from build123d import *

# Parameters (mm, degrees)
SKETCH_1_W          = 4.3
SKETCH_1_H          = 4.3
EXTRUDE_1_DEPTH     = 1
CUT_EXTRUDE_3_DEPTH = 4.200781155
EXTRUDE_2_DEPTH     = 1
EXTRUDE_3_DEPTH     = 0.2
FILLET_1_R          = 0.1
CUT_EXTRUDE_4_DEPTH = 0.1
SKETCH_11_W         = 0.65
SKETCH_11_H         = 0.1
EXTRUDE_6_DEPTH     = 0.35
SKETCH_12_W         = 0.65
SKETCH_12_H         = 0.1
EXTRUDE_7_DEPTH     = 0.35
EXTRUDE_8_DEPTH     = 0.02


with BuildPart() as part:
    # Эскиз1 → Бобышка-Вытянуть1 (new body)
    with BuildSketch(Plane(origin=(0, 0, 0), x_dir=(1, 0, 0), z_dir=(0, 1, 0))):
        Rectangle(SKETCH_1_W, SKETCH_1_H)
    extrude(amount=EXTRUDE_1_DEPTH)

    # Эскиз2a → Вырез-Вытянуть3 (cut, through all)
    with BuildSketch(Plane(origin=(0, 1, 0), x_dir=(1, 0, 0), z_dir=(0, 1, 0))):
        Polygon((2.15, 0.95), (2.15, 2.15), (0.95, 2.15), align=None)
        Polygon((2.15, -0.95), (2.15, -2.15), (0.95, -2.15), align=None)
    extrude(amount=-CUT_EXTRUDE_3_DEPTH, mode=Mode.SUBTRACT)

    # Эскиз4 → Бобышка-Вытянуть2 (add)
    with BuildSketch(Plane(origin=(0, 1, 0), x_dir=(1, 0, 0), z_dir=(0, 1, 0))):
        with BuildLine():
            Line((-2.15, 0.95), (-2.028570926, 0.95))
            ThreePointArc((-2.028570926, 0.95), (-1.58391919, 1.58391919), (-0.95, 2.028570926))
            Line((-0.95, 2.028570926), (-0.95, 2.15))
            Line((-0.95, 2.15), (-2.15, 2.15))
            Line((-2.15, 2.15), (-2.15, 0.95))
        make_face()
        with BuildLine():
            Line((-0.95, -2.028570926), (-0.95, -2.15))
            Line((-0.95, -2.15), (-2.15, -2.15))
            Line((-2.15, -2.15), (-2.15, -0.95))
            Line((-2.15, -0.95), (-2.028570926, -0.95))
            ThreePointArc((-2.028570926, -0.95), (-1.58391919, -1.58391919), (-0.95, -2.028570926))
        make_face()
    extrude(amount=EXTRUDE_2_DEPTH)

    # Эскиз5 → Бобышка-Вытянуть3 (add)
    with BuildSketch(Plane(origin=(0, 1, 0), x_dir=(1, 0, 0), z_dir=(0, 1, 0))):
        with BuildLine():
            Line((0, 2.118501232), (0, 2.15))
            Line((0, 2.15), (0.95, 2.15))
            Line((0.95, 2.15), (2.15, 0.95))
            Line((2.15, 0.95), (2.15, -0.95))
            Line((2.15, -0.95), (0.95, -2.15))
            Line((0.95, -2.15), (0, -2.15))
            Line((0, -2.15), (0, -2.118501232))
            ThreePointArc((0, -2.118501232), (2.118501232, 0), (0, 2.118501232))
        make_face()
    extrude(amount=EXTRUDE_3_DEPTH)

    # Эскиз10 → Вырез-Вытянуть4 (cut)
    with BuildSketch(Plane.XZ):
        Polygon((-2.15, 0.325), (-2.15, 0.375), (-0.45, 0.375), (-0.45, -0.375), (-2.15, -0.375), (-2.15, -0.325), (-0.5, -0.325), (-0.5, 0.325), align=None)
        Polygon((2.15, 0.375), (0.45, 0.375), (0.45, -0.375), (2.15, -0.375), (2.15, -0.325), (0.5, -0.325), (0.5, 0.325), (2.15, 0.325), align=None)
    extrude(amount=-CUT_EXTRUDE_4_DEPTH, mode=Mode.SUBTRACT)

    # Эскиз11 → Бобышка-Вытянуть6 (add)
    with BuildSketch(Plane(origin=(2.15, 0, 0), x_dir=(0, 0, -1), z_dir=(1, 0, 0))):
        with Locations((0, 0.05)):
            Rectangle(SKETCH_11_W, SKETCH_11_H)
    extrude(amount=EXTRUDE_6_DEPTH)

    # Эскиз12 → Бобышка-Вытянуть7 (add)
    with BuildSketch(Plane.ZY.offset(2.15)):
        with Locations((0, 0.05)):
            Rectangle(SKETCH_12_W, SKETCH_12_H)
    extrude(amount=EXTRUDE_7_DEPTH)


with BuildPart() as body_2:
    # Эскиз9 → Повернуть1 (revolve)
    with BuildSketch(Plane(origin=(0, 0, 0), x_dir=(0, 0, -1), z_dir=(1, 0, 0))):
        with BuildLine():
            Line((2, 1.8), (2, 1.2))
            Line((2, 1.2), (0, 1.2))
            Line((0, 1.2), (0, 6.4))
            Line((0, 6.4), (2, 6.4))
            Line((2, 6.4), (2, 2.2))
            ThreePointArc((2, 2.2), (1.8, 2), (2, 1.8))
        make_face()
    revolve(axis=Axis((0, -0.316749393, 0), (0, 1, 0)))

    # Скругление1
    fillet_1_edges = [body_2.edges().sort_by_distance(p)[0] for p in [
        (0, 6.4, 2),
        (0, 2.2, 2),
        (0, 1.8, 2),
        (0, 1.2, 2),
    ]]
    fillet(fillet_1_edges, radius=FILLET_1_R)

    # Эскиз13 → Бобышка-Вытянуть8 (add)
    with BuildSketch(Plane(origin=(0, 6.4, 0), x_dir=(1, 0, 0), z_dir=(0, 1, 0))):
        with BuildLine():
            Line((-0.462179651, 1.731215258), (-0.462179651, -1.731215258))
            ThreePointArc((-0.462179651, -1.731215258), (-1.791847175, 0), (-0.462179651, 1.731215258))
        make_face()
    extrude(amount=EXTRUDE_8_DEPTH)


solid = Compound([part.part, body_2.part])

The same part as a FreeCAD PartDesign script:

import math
import FreeCAD as App
import Part
import Sketcher
Q = App.Units.Quantity


def edges_at(feature, points):
    """Names of the edges that pass closest to the given points."""
    edges = feature.Shape.Edges
    near = lambda p: min(range(len(edges)), key=lambda i: edges[i].distToShape(Part.Vertex(*p))[0])
    return sorted({f"Edge{near(p) + 1}" for p in points})


def add_polygon(sketch, points):
    """Adds a closed chain of lines whose ends are joined by coincident constraints."""
    first, n = sketch.GeometryCount, len(points)
    for a, b in zip(points, points[1:] + points[:1]):
        sketch.addGeometry(Part.LineSegment(App.Vector(*a, 0), App.Vector(*b, 0)), False)
    for i in range(n):
        sketch.addConstraint(Sketcher.Constraint("Coincident", first + i, 2, first + (i + 1) % n, 1))

doc = App.newDocument("Part")
params = doc.addObject("Spreadsheet::Sheet", "Params")
for row, (alias, value) in enumerate([
    ("sketch1_width", "4.3 mm"),
    ("pad1_length", "1 mm"),
    ("sketch2_width", "1.2 mm"),
    ("sketch3_radius", "2.24 mm"),
    ("sketch3_width", "1.2 mm"),
    ("pad2_length", "1 mm"),
    ("sketch4_height", "1.9 mm"),
    ("sketch4_width", "0.95 mm"),
    ("pad3_length", "0.2 mm"),
    ("sketch5_width", "1.7 mm"),
    ("sketch5_width2", "1.65 mm"),
    ("sketch5_height", "0.05 mm"),
    ("sketch5_height2", "0.65 mm"),
    ("pocket2_length", "0.1 mm"),
    ("sketch6_width", "0.1 mm"),
    ("sketch6_height", "0.65 mm"),
    ("pad4_length", "0.35 mm"),
    ("sketch7_width", "0.1 mm"),
    ("sketch7_height", "0.65 mm"),
    ("pad5_length", "0.35 mm"),
    ("sketch8_radius", "0.2 mm"),
    ("sketch8_height", "2 mm"),
    ("sketch8_width", "0.6 mm"),
    ("sketch8_width2", "4.2 mm"),
    ("revolution_angle", "360 deg"),
    ("fillet_radius", "0.1 mm"),
    ("pad6_length", "0.02 mm"),
], start=1):
    params.set(f"A{row}", alias)
    params.set(f"B{row}", "=" + value)
    params.setAlias(f"B{row}", alias)

body = doc.addObject("PartDesign::Body", "Body")

sketch1 = body.newObject("Sketcher::SketchObject", "Sketch")
sketch1.AttachmentSupport = (doc.getObject("XZ_Plane"), [""])
sketch1.MapMode = "FlatFace"
add_polygon(sketch1, [(-2.15, -2.15), (-2.15, 2.15), (2.15, 2.15), (2.15, -2.15)])
sketch1.addConstraint([
    Sketcher.Constraint("Vertical", 0),
    Sketcher.Constraint("Horizontal", 1),
    Sketcher.Constraint("Vertical", 2),
    Sketcher.Constraint("Horizontal", 3),
    Sketcher.Constraint("Symmetric", 0, 2, 2, 2, -1, 1),
    Sketcher.Constraint("Equal", 3, 0),
    Sketcher.Constraint("DistanceX", 1, 1, 1, 2, Q("4.3 mm")),
])
sketch1.setExpression("Constraints[10]", "Params.sketch1_width")
pad1 = body.newObject("PartDesign::Pad", "Pad")
pad1.Profile = sketch1
pad1.setExpression("Length", "Params.pad1_length")
pad1.Reversed = True

sketch2 = body.newObject("Sketcher::SketchObject", "Sketch001")
sketch2.AttachmentSupport = (doc.getObject("XZ_Plane"), [""])
sketch2.MapMode = "FlatFace"
sketch2.AttachmentOffset = App.Placement(App.Vector(0, 0, -1), App.Rotation())
add_polygon(sketch2, [(2.15, -0.95), (2.15, -2.15), (0.95, -2.15)])
add_polygon(sketch2, [(2.15, 2.15), (2.15, 0.95), (0.95, 2.15)])
sketch2.addConstraint([
    Sketcher.Constraint("Vertical", 0),
    Sketcher.Constraint("Horizontal", 1),
    Sketcher.Constraint("Vertical", 3),
    Sketcher.Constraint("Horizontal", 5),
    Sketcher.Constraint("Symmetric", 2, 2, 3, 2, -1),
    Sketcher.Constraint("Symmetric", 1, 2, 4, 2, -1),
    Sketcher.Constraint("Perpendicular", 2, 4),
    Sketcher.Constraint("DistanceX", 1, 2, 1, 1, Q("1.2 mm")),
    Sketcher.Constraint("DistanceY", 2, 2, 3, 2, Q("1.9 mm")),
    Sketcher.Constraint("DistanceX", -1, 1, 0, 2, Q("2.15 mm")),
])
sketch2.setExpression("Constraints[13]", "Params.sketch2_width")
pocket1 = body.newObject("PartDesign::Pocket", "Pocket")
pocket1.Profile = sketch2
pocket1.Type = "ThroughAll"
pocket1.Reversed = True

sketch3 = body.newObject("Sketcher::SketchObject", "Sketch002")
sketch3.AttachmentSupport = (doc.getObject("XZ_Plane"), [""])
sketch3.MapMode = "FlatFace"
sketch3.AttachmentOffset = App.Placement(App.Vector(0, 0, -1), App.Rotation())
sketch3.addGeometry([
    Part.LineSegment(App.Vector(-2.15, -0.95, 0), App.Vector(-2.028571, -0.95, 0)),
    Part.ArcOfCircle(Part.Circle(App.Vector(0, 0, 0), App.Vector(0, 0, 1), 2.24), math.radians(-154.905838), math.radians(-115.094162)),
    Part.LineSegment(App.Vector(-0.95, -2.028571, 0), App.Vector(-0.95, -2.15, 0)),
    Part.LineSegment(App.Vector(-0.95, -2.15, 0), App.Vector(-2.15, -2.15, 0)),
    Part.LineSegment(App.Vector(-2.15, -2.15, 0), App.Vector(-2.15, -0.95, 0)),
    Part.LineSegment(App.Vector(-0.95, 2.15, 0), App.Vector(-0.95, 2.028571, 0)),
    Part.ArcOfCircle(Part.Circle(App.Vector(0, 0, 0), App.Vector(0, 0, 1), 2.24), math.radians(115.094162), math.radians(154.905838)),
    Part.LineSegment(App.Vector(-2.028571, 0.95, 0), App.Vector(-2.15, 0.95, 0)),
    Part.LineSegment(App.Vector(-2.15, 0.95, 0), App.Vector(-2.15, 2.15, 0)),
    Part.LineSegment(App.Vector(-2.15, 2.15, 0), App.Vector(-0.95, 2.15, 0)),
], False)
sketch3.addConstraint([
    Sketcher.Constraint("Coincident", 0, 2, 1, 1),
    Sketcher.Constraint("Coincident", 1, 2, 2, 1),
    Sketcher.Constraint("Coincident", 2, 2, 3, 1),
    Sketcher.Constraint("Coincident", 3, 2, 4, 1),
    Sketcher.Constraint("Coincident", 4, 2, 0, 1),
    Sketcher.Constraint("Coincident", 5, 2, 6, 1),
    Sketcher.Constraint("Coincident", 6, 2, 7, 1),
    Sketcher.Constraint("Coincident", 7, 2, 8, 1),
    Sketcher.Constraint("Coincident", 8, 2, 9, 1),
    Sketcher.Constraint("Coincident", 9, 2, 5, 1),
    Sketcher.Constraint("Horizontal", 0),
    Sketcher.Constraint("Vertical", 2),
    Sketcher.Constraint("Horizontal", 3),
    Sketcher.Constraint("Vertical", 4),
    Sketcher.Constraint("Vertical", 5),
    Sketcher.Constraint("Horizontal", 7),
    Sketcher.Constraint("Vertical", 8),
    Sketcher.Constraint("Horizontal", 9),
    Sketcher.Constraint("Coincident", 1, 3, -1, 1),
    Sketcher.Constraint("Coincident", 6, 3, -1, 1),
    Sketcher.Constraint("Equal", 1, 6),
    Sketcher.Constraint("Symmetric", 4, 2, 7, 2, -1),
    Sketcher.Constraint("Symmetric", 2, 2, 9, 2, -1),
    Sketcher.Constraint("Equal", 7, 2),
    Sketcher.Constraint("Equal", 9, 4),
    Sketcher.Constraint("Radius", 1, Q("2.24 mm")),
    Sketcher.Constraint("DistanceX", 3, 2, 3, 1, Q("1.2 mm")),
    Sketcher.Constraint("DistanceY", 0, 2, 6, 2, Q("1.9 mm")),
])
sketch3.setExpression("Constraints[25]", "Params.sketch3_radius")
sketch3.setExpression("Constraints[26]", "Params.sketch3_width")
pad2 = body.newObject("PartDesign::Pad", "Pad001")
pad2.Profile = sketch3
pad2.setExpression("Length", "Params.pad2_length")
pad2.Reversed = True

sketch4 = body.newObject("Sketcher::SketchObject", "Sketch003")
sketch4.AttachmentSupport = (doc.getObject("XZ_Plane"), [""])
sketch4.MapMode = "FlatFace"
sketch4.AttachmentOffset = App.Placement(App.Vector(0, 0, -1), App.Rotation())
sketch4.addGeometry([
    Part.LineSegment(App.Vector(0, -2.15, 0), App.Vector(0, -2.118501, 0)),
    Part.ArcOfCircle(Part.Circle(App.Vector(0, 0, 0), App.Vector(0, 0, 1), 2.118501), math.radians(-90), math.radians(90)),
    Part.LineSegment(App.Vector(0, 2.118501, 0), App.Vector(0, 2.15, 0)),
    Part.LineSegment(App.Vector(0, 2.15, 0), App.Vector(0.95, 2.15, 0)),
    Part.LineSegment(App.Vector(0.95, 2.15, 0), App.Vector(2.15, 0.95, 0)),
    Part.LineSegment(App.Vector(2.15, 0.95, 0), App.Vector(2.15, -0.95, 0)),
    Part.LineSegment(App.Vector(2.15, -0.95, 0), App.Vector(0.95, -2.15, 0)),
    Part.LineSegment(App.Vector(0.95, -2.15, 0), App.Vector(0, -2.15, 0)),
], False)
sketch4.addConstraint([
    Sketcher.Constraint("Coincident", 0, 2, 1, 1),
    Sketcher.Constraint("Coincident", 1, 2, 2, 1),
    Sketcher.Constraint("Coincident", 2, 2, 3, 1),
    Sketcher.Constraint("Coincident", 3, 2, 4, 1),
    Sketcher.Constraint("Coincident", 4, 2, 5, 1),
    Sketcher.Constraint("Coincident", 5, 2, 6, 1),
    Sketcher.Constraint("Coincident", 6, 2, 7, 1),
    Sketcher.Constraint("Coincident", 7, 2, 0, 1),
    Sketcher.Constraint("Vertical", 0),
    Sketcher.Constraint("Vertical", 2),
    Sketcher.Constraint("Horizontal", 3),
    Sketcher.Constraint("Vertical", 5),
    Sketcher.Constraint("Horizontal", 7),
    Sketcher.Constraint("Coincident", 1, 3, -1, 1),
    Sketcher.Constraint("Symmetric", 2, 2, 7, 2, -1, 1),
    Sketcher.Constraint("PointOnObject", 0, 2, -2),
    Sketcher.Constraint("Perpendicular", 4, 6),
    Sketcher.Constraint("Vertical", 3, 2, 6, 2),
    Sketcher.Constraint("Equal", 4, 6),
    Sketcher.Constraint("DistanceY", 5, 2, 5, 1, Q("1.9 mm")),
    Sketcher.Constraint("DistanceX", 3, 1, 3, 2, Q("0.95 mm")),
    Sketcher.Constraint("Radius", 1, Q("2.118501 mm")),
    Sketcher.Constraint("DistanceX", 3, 2, 4, 2, Q("1.2 mm")),
])
sketch4.setExpression("Constraints[19]", "Params.sketch4_height")
sketch4.setExpression("Constraints[20]", "Params.sketch4_width")
pad3 = body.newObject("PartDesign::Pad", "Pad002")
pad3.Profile = sketch4
pad3.setExpression("Length", "Params.pad3_length")
pad3.Reversed = True

sketch5 = body.newObject("Sketcher::SketchObject", "Sketch004")
sketch5.AttachmentSupport = (doc.getObject("XZ_Plane"), [""])
sketch5.MapMode = "FlatFace"
add_polygon(sketch5, [(-2.15, 0.375), (-2.15, 0.325), (-0.5, 0.325), (-0.5, -0.325), (-2.15, -0.325), (-2.15, -0.375), (-0.45, -0.375), (-0.45, 0.375)])
add_polygon(sketch5, [(2.15, 0.375), (0.45, 0.375), (0.45, -0.375), (2.15, -0.375), (2.15, -0.325), (0.5, -0.325), (0.5, 0.325), (2.15, 0.325)])
sketch5.addConstraint([
    Sketcher.Constraint("Vertical", 0),
    Sketcher.Constraint("Horizontal", 1),
    Sketcher.Constraint("Vertical", 2),
    Sketcher.Constraint("Horizontal", 3),
    Sketcher.Constraint("Vertical", 4),
    Sketcher.Constraint("Horizontal", 5),
    Sketcher.Constraint("Vertical", 6),
    Sketcher.Constraint("Horizontal", 7),
    Sketcher.Constraint("Horizontal", 8),
    Sketcher.Constraint("Vertical", 9),
    Sketcher.Constraint("Horizontal", 10),
    Sketcher.Constraint("Vertical", 11),
    Sketcher.Constraint("Horizontal", 12),
    Sketcher.Constraint("Vertical", 13),
    Sketcher.Constraint("Horizontal", 14),
    Sketcher.Constraint("Vertical", 15),
    Sketcher.Constraint("Symmetric", 5, 2, 8, 2, -1, 1),
    Sketcher.Constraint("Symmetric", 7, 2, 10, 2, -1, 1),
    Sketcher.Constraint("Symmetric", 1, 2, 12, 2, -1, 1),
    Sketcher.Constraint("Symmetric", 3, 2, 14, 2, -1, 1),
    Sketcher.Constraint("Symmetric", 4, 2, 10, 2, -2),
    Sketcher.Constraint("Horizontal", 3, 2, 11, 2),
    Sketcher.Constraint("DistanceX", 5, 1, 5, 2, Q("1.7 mm")),
    Sketcher.Constraint("DistanceX", 2, 2, 12, 2, Q("1 mm")),
    Sketcher.Constraint("DistanceX", 1, 1, 1, 2, Q("1.65 mm")),
    Sketcher.Constraint("DistanceY", 0, 2, 0, 1, Q("0.05 mm")),
    Sketcher.Constraint("DistanceY", 2, 2, 2, 1, Q("0.65 mm")),
])
sketch5.setExpression("Constraints[38]", "Params.sketch5_width")
sketch5.setExpression("Constraints[40]", "Params.sketch5_width2")
sketch5.setExpression("Constraints[41]", "Params.sketch5_height")
sketch5.setExpression("Constraints[42]", "Params.sketch5_height2")
pocket2 = body.newObject("PartDesign::Pocket", "Pocket001")
pocket2.Profile = sketch5
pocket2.setExpression("Length", "Params.pocket2_length")

sketch6 = body.newObject("Sketcher::SketchObject", "Sketch005")
sketch6.AttachmentSupport = (doc.getObject("YZ_Plane"), [""])
sketch6.MapMode = "FlatFace"
sketch6.AttachmentOffset = App.Placement(App.Vector(0, 0, 2.15), App.Rotation())
add_polygon(sketch6, [(0.1, 0.325), (0, 0.325), (0, -0.325), (0.1, -0.325)])
sketch6.addConstraint([
    Sketcher.Constraint("Horizontal", 0),
    Sketcher.Constraint("Vertical", 1),
    Sketcher.Constraint("Horizontal", 2),
    Sketcher.Constraint("Vertical", 3),
    Sketcher.Constraint("Symmetric", 0, 2, 1, 2, -1, 1),
    Sketcher.Constraint("DistanceX", 0, 2, 0, 1, Q("0.1 mm")),
    Sketcher.Constraint("DistanceY", 1, 2, 1, 1, Q("0.65 mm")),
])
sketch6.setExpression("Constraints[9]", "Params.sketch6_width")
sketch6.setExpression("Constraints[10]", "Params.sketch6_height")
pad4 = body.newObject("PartDesign::Pad", "Pad003")
pad4.Profile = sketch6
pad4.setExpression("Length", "Params.pad4_length")

sketch7 = body.newObject("Sketcher::SketchObject", "Sketch006")
sketch7.AttachmentSupport = (doc.getObject("YZ_Plane"), [""])
sketch7.MapMode = "FlatFace"
sketch7.AttachmentOffset = App.Placement(App.Vector(0, 0, -2.15), App.Rotation())
add_polygon(sketch7, [(0.1, -0.325), (0, -0.325), (0, 0.325), (0.1, 0.325)])
sketch7.addConstraint([
    Sketcher.Constraint("Horizontal", 0),
    Sketcher.Constraint("Vertical", 1),
    Sketcher.Constraint("Horizontal", 2),
    Sketcher.Constraint("Vertical", 3),
    Sketcher.Constraint("Symmetric", 0, 2, 1, 2, -1, 1),
    Sketcher.Constraint("DistanceX", 0, 2, 0, 1, Q("0.1 mm")),
    Sketcher.Constraint("DistanceY", 1, 1, 1, 2, Q("0.65 mm")),
])
sketch7.setExpression("Constraints[9]", "Params.sketch7_width")
sketch7.setExpression("Constraints[10]", "Params.sketch7_height")
pad5 = body.newObject("PartDesign::Pad", "Pad004")
pad5.Profile = sketch7
pad5.setExpression("Length", "Params.pad5_length")
pad5.Reversed = True
body2 = doc.addObject("PartDesign::Body", "Body001")

sketch8 = body2.newObject("Sketcher::SketchObject", "Sketch007")
sketch8.AttachmentSupport = (doc.getObject("YZ_Plane001"), [""])
sketch8.MapMode = "FlatFace"
sketch8.addGeometry([
    Part.LineSegment(App.Vector(1.2, -2, 0), App.Vector(1.8, -2, 0)),
    Part.ArcOfCircle(Part.Circle(App.Vector(2, -2, 0), App.Vector(0, 0, 1), 0.2), math.radians(0), math.radians(180)),
    Part.LineSegment(App.Vector(2.2, -2, 0), App.Vector(6.4, -2, 0)),
    Part.LineSegment(App.Vector(6.4, -2, 0), App.Vector(6.4, 0, 0)),
    Part.LineSegment(App.Vector(6.4, 0, 0), App.Vector(1.2, 0, 0)),
    Part.LineSegment(App.Vector(1.2, 0, 0), App.Vector(1.2, -2, 0)),
], False)
sketch8.addConstraint([
    Sketcher.Constraint("Coincident", 0, 2, 1, 2),
    Sketcher.Constraint("Coincident", 1, 1, 2, 1),
    Sketcher.Constraint("Coincident", 2, 2, 3, 1),
    Sketcher.Constraint("Coincident", 3, 2, 4, 1),
    Sketcher.Constraint("Coincident", 4, 2, 5, 1),
    Sketcher.Constraint("Coincident", 5, 2, 0, 1),
    Sketcher.Constraint("Horizontal", 0),
    Sketcher.Constraint("Horizontal", 2),
    Sketcher.Constraint("Vertical", 3),
    Sketcher.Constraint("Horizontal", 4),
    Sketcher.Constraint("Vertical", 5),
    Sketcher.Constraint("PointOnObject", 3, 2, -1),
    Sketcher.Constraint("Horizontal", 1, 3, 0, 2),
    Sketcher.Constraint("Horizontal", 0, 2, 1, 1),
    Sketcher.Constraint("Radius", 1, Q("0.2 mm")),
    Sketcher.Constraint("DistanceY", 3, 1, 3, 2, Q("2 mm")),
    Sketcher.Constraint("DistanceX", 0, 1, 0, 2, Q("0.6 mm")),
    Sketcher.Constraint("DistanceX", 2, 1, 2, 2, Q("4.2 mm")),
    Sketcher.Constraint("DistanceX", -1, 1, 1, 3, Q("2 mm")),
])
sketch8.setExpression("Constraints[14]", "Params.sketch8_radius")
sketch8.setExpression("Constraints[15]", "Params.sketch8_height")
sketch8.setExpression("Constraints[16]", "Params.sketch8_width")
sketch8.setExpression("Constraints[17]", "Params.sketch8_width2")
revolution = body2.newObject("PartDesign::Revolution", "Revolution")
revolution.Profile = sketch8
revolution.ReferenceAxis = (sketch8, ["H_Axis"])
revolution.setExpression("Angle", "Params.revolution_angle")
doc.recompute()

fillet = body2.newObject("PartDesign::Fillet", "Fillet")
fillet.Base = (revolution, edges_at(revolution, [
    (0, 6.4, 2),
    (0, 2.2, 2),
    (0, 1.8, 2),
    (0, 1.2, 2),
]))
fillet.setExpression("Radius", "Params.fillet_radius")

sketch9 = body2.newObject("Sketcher::SketchObject", "Sketch008")
sketch9.AttachmentSupport = (doc.getObject("XZ_Plane001"), [""])
sketch9.MapMode = "FlatFace"
sketch9.AttachmentOffset = App.Placement(App.Vector(0, 0, -6.4), App.Rotation())
sketch9.addGeometry([
    Part.LineSegment(App.Vector(-0.46218, 1.731215, 0), App.Vector(-0.46218, -1.731215, 0)),
    Part.ArcOfCircle(Part.Circle(App.Vector(0, 0, 0), App.Vector(0, 0, 1), 1.791847), math.radians(104.947553), math.radians(255.052447)),
], False)
sketch9.addConstraint([
    Sketcher.Constraint("Coincident", 0, 1, 1, 1),
    Sketcher.Constraint("Coincident", 1, 2, 0, 2),
    Sketcher.Constraint("Vertical", 0),
    Sketcher.Constraint("Coincident", 1, 3, -1, 1),
    Sketcher.Constraint("Radius", 1, Q("1.791847 mm")),
    Sketcher.Constraint("DistanceY", 0, 2, 0, 1, Q("3.462431 mm")),
])
pad6 = body2.newObject("PartDesign::Pad", "Pad005")
pad6.Profile = sketch9
pad6.setExpression("Length", "Params.pad6_length")
pad6.Reversed = True

doc.recompute()
